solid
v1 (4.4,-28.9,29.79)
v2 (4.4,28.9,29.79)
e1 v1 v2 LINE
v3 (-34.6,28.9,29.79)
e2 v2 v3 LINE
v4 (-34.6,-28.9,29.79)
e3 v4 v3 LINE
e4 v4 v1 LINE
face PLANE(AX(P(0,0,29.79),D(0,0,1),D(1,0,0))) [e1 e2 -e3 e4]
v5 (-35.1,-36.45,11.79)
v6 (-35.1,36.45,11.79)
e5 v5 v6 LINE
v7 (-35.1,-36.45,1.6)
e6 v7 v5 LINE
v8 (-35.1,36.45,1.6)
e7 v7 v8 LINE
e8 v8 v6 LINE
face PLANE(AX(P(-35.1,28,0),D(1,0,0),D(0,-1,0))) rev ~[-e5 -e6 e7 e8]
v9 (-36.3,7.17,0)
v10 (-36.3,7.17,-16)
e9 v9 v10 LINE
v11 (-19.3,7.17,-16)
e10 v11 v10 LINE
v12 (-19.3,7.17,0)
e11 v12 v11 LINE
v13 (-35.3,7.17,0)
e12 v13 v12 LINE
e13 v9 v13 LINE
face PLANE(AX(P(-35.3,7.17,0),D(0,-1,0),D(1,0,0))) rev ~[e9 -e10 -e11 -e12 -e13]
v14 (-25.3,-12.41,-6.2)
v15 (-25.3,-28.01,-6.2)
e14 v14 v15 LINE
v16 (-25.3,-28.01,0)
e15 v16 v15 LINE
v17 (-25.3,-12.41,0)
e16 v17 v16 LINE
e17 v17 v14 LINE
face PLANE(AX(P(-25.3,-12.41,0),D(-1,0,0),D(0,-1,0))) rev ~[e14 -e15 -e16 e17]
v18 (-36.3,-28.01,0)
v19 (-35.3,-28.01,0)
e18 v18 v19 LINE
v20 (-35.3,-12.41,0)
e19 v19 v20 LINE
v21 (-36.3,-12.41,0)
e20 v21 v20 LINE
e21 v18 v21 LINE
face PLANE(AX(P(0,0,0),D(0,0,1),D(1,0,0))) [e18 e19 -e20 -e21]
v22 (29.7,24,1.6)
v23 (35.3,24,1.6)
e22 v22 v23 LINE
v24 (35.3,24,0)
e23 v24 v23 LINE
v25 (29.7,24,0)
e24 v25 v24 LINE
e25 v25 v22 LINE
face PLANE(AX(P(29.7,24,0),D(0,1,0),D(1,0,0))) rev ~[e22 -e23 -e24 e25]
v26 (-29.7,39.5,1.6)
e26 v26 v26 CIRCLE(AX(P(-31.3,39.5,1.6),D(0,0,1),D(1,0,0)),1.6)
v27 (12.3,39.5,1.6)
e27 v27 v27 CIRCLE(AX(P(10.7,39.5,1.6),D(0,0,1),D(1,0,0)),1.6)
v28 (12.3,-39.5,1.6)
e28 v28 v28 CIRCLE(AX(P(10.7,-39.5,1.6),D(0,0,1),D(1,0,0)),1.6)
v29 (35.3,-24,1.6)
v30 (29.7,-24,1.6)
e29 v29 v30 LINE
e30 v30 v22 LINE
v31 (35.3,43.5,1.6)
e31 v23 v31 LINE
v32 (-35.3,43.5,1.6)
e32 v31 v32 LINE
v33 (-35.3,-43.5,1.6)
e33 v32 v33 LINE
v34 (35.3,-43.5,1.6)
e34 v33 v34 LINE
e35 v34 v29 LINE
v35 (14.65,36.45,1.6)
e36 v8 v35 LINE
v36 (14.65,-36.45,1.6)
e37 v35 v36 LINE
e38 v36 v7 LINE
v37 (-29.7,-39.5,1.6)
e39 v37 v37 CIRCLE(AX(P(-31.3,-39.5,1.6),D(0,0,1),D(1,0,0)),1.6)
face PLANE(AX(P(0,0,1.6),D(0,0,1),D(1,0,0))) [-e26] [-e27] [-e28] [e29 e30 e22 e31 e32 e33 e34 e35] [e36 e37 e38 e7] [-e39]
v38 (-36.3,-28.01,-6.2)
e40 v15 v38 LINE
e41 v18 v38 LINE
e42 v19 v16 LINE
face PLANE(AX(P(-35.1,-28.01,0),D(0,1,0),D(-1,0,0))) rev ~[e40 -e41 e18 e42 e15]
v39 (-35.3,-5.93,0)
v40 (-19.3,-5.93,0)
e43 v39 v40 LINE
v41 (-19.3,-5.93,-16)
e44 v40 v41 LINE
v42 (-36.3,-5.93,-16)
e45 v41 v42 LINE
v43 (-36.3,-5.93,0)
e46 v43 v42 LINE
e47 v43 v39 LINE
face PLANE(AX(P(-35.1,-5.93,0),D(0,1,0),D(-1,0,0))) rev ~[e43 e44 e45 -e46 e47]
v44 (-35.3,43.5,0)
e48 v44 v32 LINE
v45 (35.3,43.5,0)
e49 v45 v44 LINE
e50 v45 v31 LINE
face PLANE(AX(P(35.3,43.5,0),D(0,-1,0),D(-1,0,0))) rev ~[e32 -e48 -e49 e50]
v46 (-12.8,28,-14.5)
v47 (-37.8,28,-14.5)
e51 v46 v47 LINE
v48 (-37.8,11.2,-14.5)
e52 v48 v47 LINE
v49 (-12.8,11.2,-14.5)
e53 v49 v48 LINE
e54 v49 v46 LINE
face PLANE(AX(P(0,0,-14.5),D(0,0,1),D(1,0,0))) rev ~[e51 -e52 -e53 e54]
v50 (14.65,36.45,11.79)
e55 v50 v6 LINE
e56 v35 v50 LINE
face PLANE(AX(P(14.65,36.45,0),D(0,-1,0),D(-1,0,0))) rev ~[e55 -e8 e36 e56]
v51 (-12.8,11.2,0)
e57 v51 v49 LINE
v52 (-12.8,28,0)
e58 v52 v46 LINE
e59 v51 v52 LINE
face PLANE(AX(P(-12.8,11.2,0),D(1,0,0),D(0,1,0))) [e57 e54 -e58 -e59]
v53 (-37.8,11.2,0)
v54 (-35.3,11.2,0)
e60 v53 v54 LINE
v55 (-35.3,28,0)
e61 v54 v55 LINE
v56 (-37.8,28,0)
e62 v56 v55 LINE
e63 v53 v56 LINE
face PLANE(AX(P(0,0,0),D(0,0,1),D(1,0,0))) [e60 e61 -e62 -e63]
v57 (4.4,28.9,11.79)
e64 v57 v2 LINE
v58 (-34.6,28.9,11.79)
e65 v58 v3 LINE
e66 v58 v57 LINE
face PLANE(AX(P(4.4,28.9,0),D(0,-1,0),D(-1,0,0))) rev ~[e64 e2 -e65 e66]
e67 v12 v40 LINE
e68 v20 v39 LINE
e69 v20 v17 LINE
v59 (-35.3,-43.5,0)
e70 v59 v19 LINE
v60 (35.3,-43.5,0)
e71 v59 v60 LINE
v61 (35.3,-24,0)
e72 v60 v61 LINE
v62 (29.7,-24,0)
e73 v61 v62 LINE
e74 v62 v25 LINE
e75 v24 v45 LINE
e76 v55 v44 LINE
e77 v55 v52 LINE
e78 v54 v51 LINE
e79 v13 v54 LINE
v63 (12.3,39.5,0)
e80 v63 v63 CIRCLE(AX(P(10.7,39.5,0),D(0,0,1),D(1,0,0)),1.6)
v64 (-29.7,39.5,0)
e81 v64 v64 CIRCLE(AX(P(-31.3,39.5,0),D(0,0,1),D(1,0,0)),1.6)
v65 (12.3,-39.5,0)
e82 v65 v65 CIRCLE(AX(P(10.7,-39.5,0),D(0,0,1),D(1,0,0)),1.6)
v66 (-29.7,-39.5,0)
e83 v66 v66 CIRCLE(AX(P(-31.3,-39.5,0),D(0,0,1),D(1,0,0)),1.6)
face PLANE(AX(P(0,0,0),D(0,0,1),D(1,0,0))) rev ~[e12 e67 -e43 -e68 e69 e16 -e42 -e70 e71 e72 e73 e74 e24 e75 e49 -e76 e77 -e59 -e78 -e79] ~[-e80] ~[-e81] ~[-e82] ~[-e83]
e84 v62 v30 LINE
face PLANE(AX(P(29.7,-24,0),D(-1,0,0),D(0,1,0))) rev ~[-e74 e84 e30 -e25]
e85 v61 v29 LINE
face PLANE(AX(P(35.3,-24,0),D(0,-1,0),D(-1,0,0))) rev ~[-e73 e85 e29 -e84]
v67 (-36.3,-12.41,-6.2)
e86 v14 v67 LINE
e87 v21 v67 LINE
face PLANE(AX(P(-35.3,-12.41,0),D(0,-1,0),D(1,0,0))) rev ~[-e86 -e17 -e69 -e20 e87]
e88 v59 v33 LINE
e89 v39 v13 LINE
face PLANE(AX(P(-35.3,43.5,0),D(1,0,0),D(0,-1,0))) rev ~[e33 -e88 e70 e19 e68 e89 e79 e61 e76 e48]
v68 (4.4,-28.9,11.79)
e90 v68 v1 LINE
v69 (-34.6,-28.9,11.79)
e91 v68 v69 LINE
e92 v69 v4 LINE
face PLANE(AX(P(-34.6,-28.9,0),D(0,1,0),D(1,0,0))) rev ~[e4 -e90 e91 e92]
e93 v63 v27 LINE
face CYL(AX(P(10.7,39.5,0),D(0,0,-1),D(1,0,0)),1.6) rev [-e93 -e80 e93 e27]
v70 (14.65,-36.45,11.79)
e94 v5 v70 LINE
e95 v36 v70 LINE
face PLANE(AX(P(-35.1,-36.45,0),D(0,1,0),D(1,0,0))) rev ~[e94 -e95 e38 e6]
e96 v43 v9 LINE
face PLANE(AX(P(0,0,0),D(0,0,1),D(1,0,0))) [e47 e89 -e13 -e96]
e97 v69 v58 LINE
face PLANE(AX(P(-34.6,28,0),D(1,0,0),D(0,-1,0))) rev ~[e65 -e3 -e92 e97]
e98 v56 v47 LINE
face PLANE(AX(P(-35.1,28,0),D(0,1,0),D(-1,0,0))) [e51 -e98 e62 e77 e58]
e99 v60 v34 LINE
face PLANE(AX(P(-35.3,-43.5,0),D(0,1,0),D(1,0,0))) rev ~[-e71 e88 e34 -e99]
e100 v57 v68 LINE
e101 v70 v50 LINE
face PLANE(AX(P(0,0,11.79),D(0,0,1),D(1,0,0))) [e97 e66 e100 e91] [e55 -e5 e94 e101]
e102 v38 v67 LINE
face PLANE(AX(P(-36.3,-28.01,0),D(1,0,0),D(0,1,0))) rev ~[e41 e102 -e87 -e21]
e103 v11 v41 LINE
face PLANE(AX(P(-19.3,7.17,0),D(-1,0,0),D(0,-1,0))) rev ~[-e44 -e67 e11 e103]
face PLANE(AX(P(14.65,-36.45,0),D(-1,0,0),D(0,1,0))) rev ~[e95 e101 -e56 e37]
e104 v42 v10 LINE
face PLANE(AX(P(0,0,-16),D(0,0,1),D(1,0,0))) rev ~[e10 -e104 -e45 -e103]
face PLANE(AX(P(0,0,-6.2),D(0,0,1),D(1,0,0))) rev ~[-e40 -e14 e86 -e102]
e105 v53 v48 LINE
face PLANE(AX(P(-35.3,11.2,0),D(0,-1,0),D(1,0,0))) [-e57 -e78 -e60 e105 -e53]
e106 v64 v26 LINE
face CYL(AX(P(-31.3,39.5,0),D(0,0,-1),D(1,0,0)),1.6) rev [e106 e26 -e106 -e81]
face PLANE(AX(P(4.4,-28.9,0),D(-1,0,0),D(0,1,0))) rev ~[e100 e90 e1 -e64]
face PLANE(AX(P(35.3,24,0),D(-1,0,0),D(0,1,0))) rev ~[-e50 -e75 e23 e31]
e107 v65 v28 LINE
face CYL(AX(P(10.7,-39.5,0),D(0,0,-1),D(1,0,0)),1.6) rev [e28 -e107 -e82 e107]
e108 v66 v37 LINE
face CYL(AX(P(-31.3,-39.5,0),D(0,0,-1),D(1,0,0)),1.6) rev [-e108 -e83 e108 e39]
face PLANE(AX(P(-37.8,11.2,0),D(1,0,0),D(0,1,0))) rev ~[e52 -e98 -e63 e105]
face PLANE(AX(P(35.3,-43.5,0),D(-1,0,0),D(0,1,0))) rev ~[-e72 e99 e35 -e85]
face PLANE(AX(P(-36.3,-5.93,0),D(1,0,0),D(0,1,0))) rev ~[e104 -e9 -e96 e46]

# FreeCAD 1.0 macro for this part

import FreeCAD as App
import Part
import Sketcher


def add_polygon(sketch, points):
    """Adds a closed chain of lines whose ends are joined by coincident constraints."""
    first, n = sketch.GeometryCount, len(points)
    for a, b in zip(points, points[1:] + points[:1]):
        sketch.addGeometry(Part.LineSegment(App.Vector(*a, 0), App.Vector(*b, 0)), False)
    for i in range(n):
        sketch.addConstraint(Sketcher.Constraint("Coincident", first + i, 2, first + (i + 1) % n, 1))

doc = App.newDocument("Part")
body = doc.addObject("PartDesign::Body", "Body")

# Sketch on XY plane
sketch1 = body.newObject("Sketcher::SketchObject", "Sketch")
sketch1.AttachmentSupport = (doc.getObject("XY_Plane"), [""])
sketch1.MapMode = "FlatFace"
add_polygon(sketch1, [(35.3, 24), (35.3, 43.5), (-35.3, 43.5), (-35.3, -43.5), (35.3, -43.5), (35.3, -24), (29.7, -24), (29.7, 24)])  # lines 0-7
sketch1.addGeometry(Part.Circle(App.Vector(-31.3, -39.5, 0), App.Vector(0, 0, 1), 1.6), False)  # 8
sketch1.addGeometry(Part.Circle(App.Vector(10.7, -39.5, 0), App.Vector(0, 0, 1), 1.6), False)  # 9
sketch1.addGeometry(Part.Circle(App.Vector(-31.3, 39.5, 0), App.Vector(0, 0, 1), 1.6), False)  # 10
sketch1.addGeometry(Part.Circle(App.Vector(10.7, 39.5, 0), App.Vector(0, 0, 1), 1.6), False)  # 11
sketch1.addConstraint([
    Sketcher.Constraint("Vertical", 0),
    Sketcher.Constraint("Horizontal", 1),
    Sketcher.Constraint("Vertical", 2),
    Sketcher.Constraint("Horizontal", 3),
    Sketcher.Constraint("Vertical", 4),
    Sketcher.Constraint("Horizontal", 5),
    Sketcher.Constraint("Vertical", 6),
    Sketcher.Constraint("Horizontal", 7),
    Sketcher.Constraint("Equal", 8, 9),
    Sketcher.Constraint("Equal", 9, 10),
    Sketcher.Constraint("Equal", 10, 11),
    Sketcher.Constraint("Symmetric", 0, 2, 2, 2, -1, 1),
    Sketcher.Constraint("Symmetric", 8, 3, 10, 3, -1),
    Sketcher.Constraint("Symmetric", 9, 3, 11, 3, -1),
    Sketcher.Constraint("Symmetric", 4, 2, 7, 2, -1),
    Sketcher.Constraint("Horizontal", 8, 3, 9, 3),
    Sketcher.Constraint("Diameter", 8, 3.2),
    Sketcher.Constraint("DistanceY", 2, 2, 2, 1, 87.0),
    Sketcher.Constraint("DistanceX", 1, 2, 1, 1, 70.6),
    Sketcher.Constraint("DistanceX", 5, 2, 5, 1, 5.6),
    Sketcher.Constraint("DistanceY", 0, 1, 0, 2, 19.5),
    Sketcher.Constraint("DistanceY", 11, 3, 0, 2, 4.0),
    Sketcher.Constraint("DistanceX", 1, 2, 10, 3, 4.0),
    Sketcher.Constraint("DistanceX", 1, 2, 11, 3, 46.0),
])
pad1 = body.newObject("PartDesign::Pad", "Pad")
pad1.Profile = sketch1
pad1.Length = 1.6

# Sketch on XY plane
sketch2 = body.newObject("Sketcher::SketchObject", "Sketch001")
sketch2.AttachmentSupport = (doc.getObject("XY_Plane"), [""])
sketch2.MapMode = "FlatFace"
add_polygon(sketch2, [(-35, -36), (15, -36), (15, 36), (-35, 36)])  # lines 0-3
sketch2.addConstraint([
    Sketcher.Constraint("Horizontal", 0),
    Sketcher.Constraint("Vertical", 1),
    Sketcher.Constraint("Horizontal", 2),
    Sketcher.Constraint("Vertical", 3),
    Sketcher.Constraint("DistanceY", 1, 1, 1, 2, 72.9),
    Sketcher.Constraint("DistanceX", 0, 1, 0, 2, 49.75),
    Sketcher.Constraint("DistanceX", 2, 2, -1, 1, 35.1),
    Sketcher.Constraint("DistanceY", 0, 2, -1, 1, 36.45),
])
pad2 = body.newObject("PartDesign::Pad", "Pad001")
pad2.Profile = sketch2
pad2.Length = 11.79

# Sketch on XY plane
sketch3 = body.newObject("Sketcher::SketchObject", "Sketch002")
sketch3.AttachmentSupport = (doc.getObject("XY_Plane"), [""])
sketch3.MapMode = "FlatFace"
add_polygon(sketch3, [(-35, -29), (4, -29), (4, 29), (-35, 29)])  # lines 0-3
sketch3.addConstraint([
    Sketcher.Constraint("Horizontal", 0),
    Sketcher.Constraint("Vertical", 1),
    Sketcher.Constraint("Horizontal", 2),
    Sketcher.Constraint("Vertical", 3),
    Sketcher.Constraint("DistanceX", 0, 1, 0, 2, 39.0),
    Sketcher.Constraint("DistanceY", 1, 1, 1, 2, 57.8),
    Sketcher.Constraint("DistanceX", -1, 1, 0, 2, 4.4),
    Sketcher.Constraint("DistanceY", 0, 2, -1, 1, 28.9),
])
pad3 = body.newObject("PartDesign::Pad", "Pad002")
pad3.Profile = sketch3
pad3.Length = 29.79

# Sketch on XY plane
sketch4 = body.newObject("Sketcher::SketchObject", "Sketch003")
sketch4.AttachmentSupport = (doc.getObject("XY_Plane"), [""])
sketch4.MapMode = "FlatFace"
add_polygon(sketch4, [(-38, 28), (-38, 11), (-13, 11), (-13, 28)])  # lines 0-3
sketch4.addConstraint([
    Sketcher.Constraint("Vertical", 0),
    Sketcher.Constraint("Horizontal", 1),
    Sketcher.Constraint("Vertical", 2),
    Sketcher.Constraint("Horizontal", 3),
    Sketcher.Constraint("DistanceY", 0, 2, 0, 1, 16.8),
    Sketcher.Constraint("DistanceX", 1, 1, 1, 2, 25.0),
    Sketcher.Constraint("DistanceY", -1, 1, 2, 2, 28.0),
    Sketcher.Constraint("DistanceX", 0, 2, -1, 1, 37.8),
])
pad4 = body.newObject("PartDesign::Pad", "Pad003")
pad4.Profile = sketch4
pad4.Length = 14.5
pad4.Reversed = True

# Sketch on XY plane
sketch5 = body.newObject("Sketcher::SketchObject", "Sketch004")
sketch5.AttachmentSupport = (doc.getObject("XY_Plane"), [""])
sketch5.MapMode = "FlatFace"
add_polygon(sketch5, [(-36, 7), (-36, -6), (-19, -6), (-19, 7)])  # lines 0-3
sketch5.addConstraint([
    Sketcher.Constraint("Vertical", 0),
    Sketcher.Constraint("Horizontal", 1),
    Sketcher.Constraint("Vertical", 2),
    Sketcher.Constraint("Horizontal", 3),
    Sketcher.Constraint("DistanceY", 0, 2, 0, 1, 13.1),
    Sketcher.Constraint("DistanceX", 1, 1, 1, 2, 17.0),
    Sketcher.Constraint("DistanceX", 0, 2, -1, 1, 36.3),
    Sketcher.Constraint("DistanceY", 0, 2, -1, 1, 5.93),
])
pad5 = body.newObject("PartDesign::Pad", "Pad004")
pad5.Profile = sketch5
pad5.Length = 16
pad5.Reversed = True

# Sketch on XY plane
sketch6 = body.newObject("Sketcher::SketchObject", "Sketch005")
sketch6.AttachmentSupport = (doc.getObject("XY_Plane"), [""])
sketch6.MapMode = "FlatFace"
add_polygon(sketch6, [(-36, -12), (-36, -28), (-25, -28), (-25, -12)])  # lines 0-3
sketch6.addConstraint([
    Sketcher.Constraint("Vertical", 0),
    Sketcher.Constraint("Horizontal", 1),
    Sketcher.Constraint("Vertical", 2),
    Sketcher.Constraint("Horizontal", 3),
    Sketcher.Constraint("DistanceX", 1, 1, 1, 2, 11.0),
    Sketcher.Constraint("DistanceY", 0, 2, 0, 1, 15.6),
    Sketcher.Constraint("DistanceX", 0, 2, -1, 1, 36.3),
    Sketcher.Constraint("DistanceY", 0, 2, -1, 1, 28.01),
])
pad6 = body.newObject("PartDesign::Pad", "Pad005")
pad6.Profile = sketch6
pad6.Length = 6.2
pad6.Reversed = True

doc.recompute()
